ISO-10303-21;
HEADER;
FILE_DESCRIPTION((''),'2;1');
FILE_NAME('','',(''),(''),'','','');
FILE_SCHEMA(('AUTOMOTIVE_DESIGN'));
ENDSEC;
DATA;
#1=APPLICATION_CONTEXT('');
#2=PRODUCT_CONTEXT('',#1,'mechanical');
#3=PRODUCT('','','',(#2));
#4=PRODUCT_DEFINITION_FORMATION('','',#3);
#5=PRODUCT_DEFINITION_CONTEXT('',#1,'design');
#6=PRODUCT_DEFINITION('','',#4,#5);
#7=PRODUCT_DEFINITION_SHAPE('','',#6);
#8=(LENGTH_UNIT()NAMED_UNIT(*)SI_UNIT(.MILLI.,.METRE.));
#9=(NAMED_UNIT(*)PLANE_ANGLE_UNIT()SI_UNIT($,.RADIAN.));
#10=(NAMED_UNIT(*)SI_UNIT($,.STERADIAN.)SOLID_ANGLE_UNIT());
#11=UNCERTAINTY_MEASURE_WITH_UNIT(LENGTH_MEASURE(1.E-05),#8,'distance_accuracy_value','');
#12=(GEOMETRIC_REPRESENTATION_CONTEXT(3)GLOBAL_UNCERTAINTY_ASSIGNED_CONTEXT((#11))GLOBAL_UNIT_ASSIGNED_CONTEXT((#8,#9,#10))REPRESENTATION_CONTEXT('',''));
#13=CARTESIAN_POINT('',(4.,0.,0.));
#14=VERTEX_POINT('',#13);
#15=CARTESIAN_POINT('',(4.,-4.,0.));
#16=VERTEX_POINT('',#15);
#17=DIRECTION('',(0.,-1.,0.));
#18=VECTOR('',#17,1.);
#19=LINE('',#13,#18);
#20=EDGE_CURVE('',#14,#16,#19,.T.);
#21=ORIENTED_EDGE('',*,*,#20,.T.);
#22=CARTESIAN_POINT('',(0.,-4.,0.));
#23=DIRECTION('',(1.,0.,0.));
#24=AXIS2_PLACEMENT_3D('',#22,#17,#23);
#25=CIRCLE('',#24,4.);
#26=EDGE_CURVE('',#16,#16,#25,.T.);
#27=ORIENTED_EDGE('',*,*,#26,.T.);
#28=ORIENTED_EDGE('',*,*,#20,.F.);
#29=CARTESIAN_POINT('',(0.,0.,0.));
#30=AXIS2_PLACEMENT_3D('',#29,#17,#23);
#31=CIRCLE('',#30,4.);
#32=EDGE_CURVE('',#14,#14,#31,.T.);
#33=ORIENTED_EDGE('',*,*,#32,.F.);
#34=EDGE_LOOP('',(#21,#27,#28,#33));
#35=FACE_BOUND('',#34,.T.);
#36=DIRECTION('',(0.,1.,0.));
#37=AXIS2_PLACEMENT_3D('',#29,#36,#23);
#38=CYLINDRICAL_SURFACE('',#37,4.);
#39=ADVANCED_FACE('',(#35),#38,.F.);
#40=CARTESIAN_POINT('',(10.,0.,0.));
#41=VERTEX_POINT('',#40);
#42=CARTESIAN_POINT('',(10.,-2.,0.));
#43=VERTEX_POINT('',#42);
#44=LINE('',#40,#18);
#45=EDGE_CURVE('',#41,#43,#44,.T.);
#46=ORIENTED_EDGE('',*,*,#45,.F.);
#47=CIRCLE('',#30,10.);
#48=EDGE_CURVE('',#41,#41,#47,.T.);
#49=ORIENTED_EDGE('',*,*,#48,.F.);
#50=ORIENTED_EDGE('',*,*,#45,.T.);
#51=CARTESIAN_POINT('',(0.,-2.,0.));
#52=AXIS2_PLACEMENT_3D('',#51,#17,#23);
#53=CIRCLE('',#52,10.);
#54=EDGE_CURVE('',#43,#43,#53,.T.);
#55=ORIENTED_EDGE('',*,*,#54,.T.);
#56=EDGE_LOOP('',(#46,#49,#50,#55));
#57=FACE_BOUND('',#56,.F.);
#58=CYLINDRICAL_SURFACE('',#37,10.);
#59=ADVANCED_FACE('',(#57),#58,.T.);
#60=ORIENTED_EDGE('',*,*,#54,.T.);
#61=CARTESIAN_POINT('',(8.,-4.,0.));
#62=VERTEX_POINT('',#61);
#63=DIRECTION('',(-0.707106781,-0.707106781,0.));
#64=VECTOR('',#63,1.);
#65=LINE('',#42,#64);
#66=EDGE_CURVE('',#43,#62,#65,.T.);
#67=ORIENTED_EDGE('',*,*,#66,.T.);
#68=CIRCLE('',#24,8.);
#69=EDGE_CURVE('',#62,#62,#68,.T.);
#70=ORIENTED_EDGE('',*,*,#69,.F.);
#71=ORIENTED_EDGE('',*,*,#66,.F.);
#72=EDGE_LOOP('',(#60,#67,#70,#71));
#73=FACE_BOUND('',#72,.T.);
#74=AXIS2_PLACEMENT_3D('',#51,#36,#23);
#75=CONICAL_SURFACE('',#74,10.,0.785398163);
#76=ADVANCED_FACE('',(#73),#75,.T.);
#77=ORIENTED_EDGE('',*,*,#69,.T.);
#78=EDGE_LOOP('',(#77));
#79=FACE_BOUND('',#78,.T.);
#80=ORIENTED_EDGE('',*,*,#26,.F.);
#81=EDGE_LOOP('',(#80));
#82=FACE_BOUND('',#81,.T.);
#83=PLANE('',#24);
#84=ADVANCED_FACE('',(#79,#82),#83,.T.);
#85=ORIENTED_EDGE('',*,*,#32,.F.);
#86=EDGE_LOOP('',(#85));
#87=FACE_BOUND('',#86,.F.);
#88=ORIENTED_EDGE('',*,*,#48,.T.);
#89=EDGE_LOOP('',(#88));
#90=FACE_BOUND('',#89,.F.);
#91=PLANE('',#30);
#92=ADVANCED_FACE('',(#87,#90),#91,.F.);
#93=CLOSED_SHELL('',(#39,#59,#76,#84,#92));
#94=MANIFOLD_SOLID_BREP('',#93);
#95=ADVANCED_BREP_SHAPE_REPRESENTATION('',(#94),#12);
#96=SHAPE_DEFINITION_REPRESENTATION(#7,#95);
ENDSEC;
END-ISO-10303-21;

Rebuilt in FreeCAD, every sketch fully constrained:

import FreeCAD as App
import Part
import Sketcher


def edges_at(feature, points):
    """Names of the edges that pass closest to the given points."""
    edges = feature.Shape.Edges
    near = lambda p: min(range(len(edges)), key=lambda i: edges[i].distToShape(Part.Vertex(*p))[0])
    return sorted({f"Edge{near(p) + 1}" for p in points})

doc = App.newDocument("Part")
body = doc.addObject("PartDesign::Body", "Body")

# Sketch on XZ plane
sketch1 = body.newObject("Sketcher::SketchObject", "Sketch")
sketch1.AttachmentSupport = (doc.getObject("XZ_Plane"), [""])
sketch1.MapMode = "FlatFace"
sketch1.addGeometry([
    Part.Circle(App.Vector(0, 0, 0), App.Vector(0, 0, 1), 10),
    Part.Circle(App.Vector(0, 0, 0), App.Vector(0, 0, 1), 4),
], False)
sketch1.addConstraint([
    Sketcher.Constraint("Coincident", 0, 3, -1, 1),
    Sketcher.Constraint("Coincident", 1, 3, -1, 1),
    Sketcher.Constraint("Diameter", 0, 20.0),
    Sketcher.Constraint("Diameter", 1, 8.0),
])
pad1 = body.newObject("PartDesign::Pad", "Pad")
pad1.Profile = sketch1
pad1.Length = 4
doc.recompute()

chamfer = body.newObject("PartDesign::Chamfer", "Chamfer")
chamfer.Base = (pad1, edges_at(pad1, [(-10, -4, 0)]))
chamfer.Size = 2

doc.recompute()
